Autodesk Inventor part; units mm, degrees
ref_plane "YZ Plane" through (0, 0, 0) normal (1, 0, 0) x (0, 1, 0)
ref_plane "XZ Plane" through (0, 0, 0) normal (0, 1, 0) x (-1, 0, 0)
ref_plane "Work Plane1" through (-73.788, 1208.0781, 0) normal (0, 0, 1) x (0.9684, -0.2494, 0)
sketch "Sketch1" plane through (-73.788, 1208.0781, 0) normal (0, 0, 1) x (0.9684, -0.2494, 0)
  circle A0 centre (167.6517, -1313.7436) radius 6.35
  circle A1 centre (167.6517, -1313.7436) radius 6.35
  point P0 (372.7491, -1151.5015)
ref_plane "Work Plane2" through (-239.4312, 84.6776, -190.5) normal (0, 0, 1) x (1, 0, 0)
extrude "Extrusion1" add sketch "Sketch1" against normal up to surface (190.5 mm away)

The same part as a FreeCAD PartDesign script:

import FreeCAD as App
import Part
import Sketcher
from FreeCAD import Vector
Q = App.Units.Quantity

doc = App.newDocument("Part")
body = doc.addObject("PartDesign::Body", "Body")

sketch1 = body.newObject("Sketcher::SketchObject", "Sketch")
sketch1.AttachmentSupport = (doc.getObject("XY_Plane"), [""])
sketch1.MapMode = "FlatFace"
sketch1.addGeometry(Part.Circle(Vector(-239, -106, 0), Vector(0, 0, 1), 6), False)
sketch1.addConstraint(Sketcher.Constraint("Diameter", 0, Q("0.5 in")))
sketch1.addConstraint(Sketcher.Constraint("DistanceX", 0, 3, -1, 1, 239.0818))
sketch1.addConstraint(Sketcher.Constraint("DistanceY", 0, 3, -1, 1, 105.9642))
pad1 = body.newObject("PartDesign::Pad", "Pad")
pad1.Profile = sketch1
pad1.Length = Q("7.5 in")
pad1.Reversed = True

doc.recompute()
